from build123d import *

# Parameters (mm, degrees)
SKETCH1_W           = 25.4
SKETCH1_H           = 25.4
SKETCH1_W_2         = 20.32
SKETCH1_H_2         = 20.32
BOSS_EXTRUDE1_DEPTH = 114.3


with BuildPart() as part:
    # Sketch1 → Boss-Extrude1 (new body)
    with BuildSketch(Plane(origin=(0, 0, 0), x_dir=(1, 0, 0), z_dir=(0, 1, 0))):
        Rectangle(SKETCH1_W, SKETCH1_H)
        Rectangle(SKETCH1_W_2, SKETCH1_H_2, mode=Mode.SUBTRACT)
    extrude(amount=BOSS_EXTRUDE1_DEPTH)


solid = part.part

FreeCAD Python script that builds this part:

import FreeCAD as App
import Part
import Sketcher
from FreeCAD import Vector
Q = App.Units.Quantity


def add_polygon(sketch, points):
    """Adds a closed chain of lines whose ends are joined by coincident constraints."""
    first, n = sketch.GeometryCount, len(points)
    for a, b in zip(points, points[1:] + points[:1]):
        sketch.addGeometry(Part.LineSegment(App.Vector(*a, 0), App.Vector(*b, 0)), False)
    for i in range(n):
        sketch.addConstraint(Sketcher.Constraint("Coincident", first + i, 2, first + (i + 1) % n, 1))

doc = App.newDocument("Part")
body = doc.addObject("PartDesign::Body", "Body")

# Sketch on XZ plane
sketch1 = doc.addObject("Sketcher::SketchObject", "Sketch")
body.addObject(sketch1)
sketch1.AttachmentSupport = (doc.XZ_Plane, [""])
sketch1.MapMode = "FlatFace"
add_polygon(sketch1, [(-12.7, -12.7), (-12.7, 12.7), (12.7, 12.7), (12.7, -12.7)])  # lines 0-3
add_polygon(sketch1, [(10.16, 10.16), (-10.16, 10.16), (-10.16, -10.16), (10.16, -10.16)])  # lines 4-7
sketch1.addConstraint([
    Sketcher.Constraint("Vertical", 0),
    Sketcher.Constraint("Horizontal", 1),
    Sketcher.Constraint("Vertical", 2),
    Sketcher.Constraint("Horizontal", 3),
    Sketcher.Constraint("Horizontal", 4),
    Sketcher.Constraint("Vertical", 5),
    Sketcher.Constraint("Horizontal", 6),
    Sketcher.Constraint("Vertical", 7),
    Sketcher.Constraint("Symmetric", 0, 2, 2, 2, -1, 1),
    Sketcher.Constraint("Symmetric", 4, 2, 6, 2, -1, 1),
    Sketcher.Constraint("Equal", 3, 0),
    Sketcher.Constraint("Equal", 6, 5),
    Sketcher.Constraint("DistanceX", 1, 1, 1, 2, Q("1 in")),
    Sketcher.Constraint("DistanceX", 4, 2, 4, 1, Q("0.8 in")),
])
pad1 = doc.addObject("PartDesign::Pad", "Pad")
body.addObject(pad1)
pad1.Profile = sketch1
pad1.Length = Q("4.5 in")
pad1.Reversed = True

doc.recompute()
